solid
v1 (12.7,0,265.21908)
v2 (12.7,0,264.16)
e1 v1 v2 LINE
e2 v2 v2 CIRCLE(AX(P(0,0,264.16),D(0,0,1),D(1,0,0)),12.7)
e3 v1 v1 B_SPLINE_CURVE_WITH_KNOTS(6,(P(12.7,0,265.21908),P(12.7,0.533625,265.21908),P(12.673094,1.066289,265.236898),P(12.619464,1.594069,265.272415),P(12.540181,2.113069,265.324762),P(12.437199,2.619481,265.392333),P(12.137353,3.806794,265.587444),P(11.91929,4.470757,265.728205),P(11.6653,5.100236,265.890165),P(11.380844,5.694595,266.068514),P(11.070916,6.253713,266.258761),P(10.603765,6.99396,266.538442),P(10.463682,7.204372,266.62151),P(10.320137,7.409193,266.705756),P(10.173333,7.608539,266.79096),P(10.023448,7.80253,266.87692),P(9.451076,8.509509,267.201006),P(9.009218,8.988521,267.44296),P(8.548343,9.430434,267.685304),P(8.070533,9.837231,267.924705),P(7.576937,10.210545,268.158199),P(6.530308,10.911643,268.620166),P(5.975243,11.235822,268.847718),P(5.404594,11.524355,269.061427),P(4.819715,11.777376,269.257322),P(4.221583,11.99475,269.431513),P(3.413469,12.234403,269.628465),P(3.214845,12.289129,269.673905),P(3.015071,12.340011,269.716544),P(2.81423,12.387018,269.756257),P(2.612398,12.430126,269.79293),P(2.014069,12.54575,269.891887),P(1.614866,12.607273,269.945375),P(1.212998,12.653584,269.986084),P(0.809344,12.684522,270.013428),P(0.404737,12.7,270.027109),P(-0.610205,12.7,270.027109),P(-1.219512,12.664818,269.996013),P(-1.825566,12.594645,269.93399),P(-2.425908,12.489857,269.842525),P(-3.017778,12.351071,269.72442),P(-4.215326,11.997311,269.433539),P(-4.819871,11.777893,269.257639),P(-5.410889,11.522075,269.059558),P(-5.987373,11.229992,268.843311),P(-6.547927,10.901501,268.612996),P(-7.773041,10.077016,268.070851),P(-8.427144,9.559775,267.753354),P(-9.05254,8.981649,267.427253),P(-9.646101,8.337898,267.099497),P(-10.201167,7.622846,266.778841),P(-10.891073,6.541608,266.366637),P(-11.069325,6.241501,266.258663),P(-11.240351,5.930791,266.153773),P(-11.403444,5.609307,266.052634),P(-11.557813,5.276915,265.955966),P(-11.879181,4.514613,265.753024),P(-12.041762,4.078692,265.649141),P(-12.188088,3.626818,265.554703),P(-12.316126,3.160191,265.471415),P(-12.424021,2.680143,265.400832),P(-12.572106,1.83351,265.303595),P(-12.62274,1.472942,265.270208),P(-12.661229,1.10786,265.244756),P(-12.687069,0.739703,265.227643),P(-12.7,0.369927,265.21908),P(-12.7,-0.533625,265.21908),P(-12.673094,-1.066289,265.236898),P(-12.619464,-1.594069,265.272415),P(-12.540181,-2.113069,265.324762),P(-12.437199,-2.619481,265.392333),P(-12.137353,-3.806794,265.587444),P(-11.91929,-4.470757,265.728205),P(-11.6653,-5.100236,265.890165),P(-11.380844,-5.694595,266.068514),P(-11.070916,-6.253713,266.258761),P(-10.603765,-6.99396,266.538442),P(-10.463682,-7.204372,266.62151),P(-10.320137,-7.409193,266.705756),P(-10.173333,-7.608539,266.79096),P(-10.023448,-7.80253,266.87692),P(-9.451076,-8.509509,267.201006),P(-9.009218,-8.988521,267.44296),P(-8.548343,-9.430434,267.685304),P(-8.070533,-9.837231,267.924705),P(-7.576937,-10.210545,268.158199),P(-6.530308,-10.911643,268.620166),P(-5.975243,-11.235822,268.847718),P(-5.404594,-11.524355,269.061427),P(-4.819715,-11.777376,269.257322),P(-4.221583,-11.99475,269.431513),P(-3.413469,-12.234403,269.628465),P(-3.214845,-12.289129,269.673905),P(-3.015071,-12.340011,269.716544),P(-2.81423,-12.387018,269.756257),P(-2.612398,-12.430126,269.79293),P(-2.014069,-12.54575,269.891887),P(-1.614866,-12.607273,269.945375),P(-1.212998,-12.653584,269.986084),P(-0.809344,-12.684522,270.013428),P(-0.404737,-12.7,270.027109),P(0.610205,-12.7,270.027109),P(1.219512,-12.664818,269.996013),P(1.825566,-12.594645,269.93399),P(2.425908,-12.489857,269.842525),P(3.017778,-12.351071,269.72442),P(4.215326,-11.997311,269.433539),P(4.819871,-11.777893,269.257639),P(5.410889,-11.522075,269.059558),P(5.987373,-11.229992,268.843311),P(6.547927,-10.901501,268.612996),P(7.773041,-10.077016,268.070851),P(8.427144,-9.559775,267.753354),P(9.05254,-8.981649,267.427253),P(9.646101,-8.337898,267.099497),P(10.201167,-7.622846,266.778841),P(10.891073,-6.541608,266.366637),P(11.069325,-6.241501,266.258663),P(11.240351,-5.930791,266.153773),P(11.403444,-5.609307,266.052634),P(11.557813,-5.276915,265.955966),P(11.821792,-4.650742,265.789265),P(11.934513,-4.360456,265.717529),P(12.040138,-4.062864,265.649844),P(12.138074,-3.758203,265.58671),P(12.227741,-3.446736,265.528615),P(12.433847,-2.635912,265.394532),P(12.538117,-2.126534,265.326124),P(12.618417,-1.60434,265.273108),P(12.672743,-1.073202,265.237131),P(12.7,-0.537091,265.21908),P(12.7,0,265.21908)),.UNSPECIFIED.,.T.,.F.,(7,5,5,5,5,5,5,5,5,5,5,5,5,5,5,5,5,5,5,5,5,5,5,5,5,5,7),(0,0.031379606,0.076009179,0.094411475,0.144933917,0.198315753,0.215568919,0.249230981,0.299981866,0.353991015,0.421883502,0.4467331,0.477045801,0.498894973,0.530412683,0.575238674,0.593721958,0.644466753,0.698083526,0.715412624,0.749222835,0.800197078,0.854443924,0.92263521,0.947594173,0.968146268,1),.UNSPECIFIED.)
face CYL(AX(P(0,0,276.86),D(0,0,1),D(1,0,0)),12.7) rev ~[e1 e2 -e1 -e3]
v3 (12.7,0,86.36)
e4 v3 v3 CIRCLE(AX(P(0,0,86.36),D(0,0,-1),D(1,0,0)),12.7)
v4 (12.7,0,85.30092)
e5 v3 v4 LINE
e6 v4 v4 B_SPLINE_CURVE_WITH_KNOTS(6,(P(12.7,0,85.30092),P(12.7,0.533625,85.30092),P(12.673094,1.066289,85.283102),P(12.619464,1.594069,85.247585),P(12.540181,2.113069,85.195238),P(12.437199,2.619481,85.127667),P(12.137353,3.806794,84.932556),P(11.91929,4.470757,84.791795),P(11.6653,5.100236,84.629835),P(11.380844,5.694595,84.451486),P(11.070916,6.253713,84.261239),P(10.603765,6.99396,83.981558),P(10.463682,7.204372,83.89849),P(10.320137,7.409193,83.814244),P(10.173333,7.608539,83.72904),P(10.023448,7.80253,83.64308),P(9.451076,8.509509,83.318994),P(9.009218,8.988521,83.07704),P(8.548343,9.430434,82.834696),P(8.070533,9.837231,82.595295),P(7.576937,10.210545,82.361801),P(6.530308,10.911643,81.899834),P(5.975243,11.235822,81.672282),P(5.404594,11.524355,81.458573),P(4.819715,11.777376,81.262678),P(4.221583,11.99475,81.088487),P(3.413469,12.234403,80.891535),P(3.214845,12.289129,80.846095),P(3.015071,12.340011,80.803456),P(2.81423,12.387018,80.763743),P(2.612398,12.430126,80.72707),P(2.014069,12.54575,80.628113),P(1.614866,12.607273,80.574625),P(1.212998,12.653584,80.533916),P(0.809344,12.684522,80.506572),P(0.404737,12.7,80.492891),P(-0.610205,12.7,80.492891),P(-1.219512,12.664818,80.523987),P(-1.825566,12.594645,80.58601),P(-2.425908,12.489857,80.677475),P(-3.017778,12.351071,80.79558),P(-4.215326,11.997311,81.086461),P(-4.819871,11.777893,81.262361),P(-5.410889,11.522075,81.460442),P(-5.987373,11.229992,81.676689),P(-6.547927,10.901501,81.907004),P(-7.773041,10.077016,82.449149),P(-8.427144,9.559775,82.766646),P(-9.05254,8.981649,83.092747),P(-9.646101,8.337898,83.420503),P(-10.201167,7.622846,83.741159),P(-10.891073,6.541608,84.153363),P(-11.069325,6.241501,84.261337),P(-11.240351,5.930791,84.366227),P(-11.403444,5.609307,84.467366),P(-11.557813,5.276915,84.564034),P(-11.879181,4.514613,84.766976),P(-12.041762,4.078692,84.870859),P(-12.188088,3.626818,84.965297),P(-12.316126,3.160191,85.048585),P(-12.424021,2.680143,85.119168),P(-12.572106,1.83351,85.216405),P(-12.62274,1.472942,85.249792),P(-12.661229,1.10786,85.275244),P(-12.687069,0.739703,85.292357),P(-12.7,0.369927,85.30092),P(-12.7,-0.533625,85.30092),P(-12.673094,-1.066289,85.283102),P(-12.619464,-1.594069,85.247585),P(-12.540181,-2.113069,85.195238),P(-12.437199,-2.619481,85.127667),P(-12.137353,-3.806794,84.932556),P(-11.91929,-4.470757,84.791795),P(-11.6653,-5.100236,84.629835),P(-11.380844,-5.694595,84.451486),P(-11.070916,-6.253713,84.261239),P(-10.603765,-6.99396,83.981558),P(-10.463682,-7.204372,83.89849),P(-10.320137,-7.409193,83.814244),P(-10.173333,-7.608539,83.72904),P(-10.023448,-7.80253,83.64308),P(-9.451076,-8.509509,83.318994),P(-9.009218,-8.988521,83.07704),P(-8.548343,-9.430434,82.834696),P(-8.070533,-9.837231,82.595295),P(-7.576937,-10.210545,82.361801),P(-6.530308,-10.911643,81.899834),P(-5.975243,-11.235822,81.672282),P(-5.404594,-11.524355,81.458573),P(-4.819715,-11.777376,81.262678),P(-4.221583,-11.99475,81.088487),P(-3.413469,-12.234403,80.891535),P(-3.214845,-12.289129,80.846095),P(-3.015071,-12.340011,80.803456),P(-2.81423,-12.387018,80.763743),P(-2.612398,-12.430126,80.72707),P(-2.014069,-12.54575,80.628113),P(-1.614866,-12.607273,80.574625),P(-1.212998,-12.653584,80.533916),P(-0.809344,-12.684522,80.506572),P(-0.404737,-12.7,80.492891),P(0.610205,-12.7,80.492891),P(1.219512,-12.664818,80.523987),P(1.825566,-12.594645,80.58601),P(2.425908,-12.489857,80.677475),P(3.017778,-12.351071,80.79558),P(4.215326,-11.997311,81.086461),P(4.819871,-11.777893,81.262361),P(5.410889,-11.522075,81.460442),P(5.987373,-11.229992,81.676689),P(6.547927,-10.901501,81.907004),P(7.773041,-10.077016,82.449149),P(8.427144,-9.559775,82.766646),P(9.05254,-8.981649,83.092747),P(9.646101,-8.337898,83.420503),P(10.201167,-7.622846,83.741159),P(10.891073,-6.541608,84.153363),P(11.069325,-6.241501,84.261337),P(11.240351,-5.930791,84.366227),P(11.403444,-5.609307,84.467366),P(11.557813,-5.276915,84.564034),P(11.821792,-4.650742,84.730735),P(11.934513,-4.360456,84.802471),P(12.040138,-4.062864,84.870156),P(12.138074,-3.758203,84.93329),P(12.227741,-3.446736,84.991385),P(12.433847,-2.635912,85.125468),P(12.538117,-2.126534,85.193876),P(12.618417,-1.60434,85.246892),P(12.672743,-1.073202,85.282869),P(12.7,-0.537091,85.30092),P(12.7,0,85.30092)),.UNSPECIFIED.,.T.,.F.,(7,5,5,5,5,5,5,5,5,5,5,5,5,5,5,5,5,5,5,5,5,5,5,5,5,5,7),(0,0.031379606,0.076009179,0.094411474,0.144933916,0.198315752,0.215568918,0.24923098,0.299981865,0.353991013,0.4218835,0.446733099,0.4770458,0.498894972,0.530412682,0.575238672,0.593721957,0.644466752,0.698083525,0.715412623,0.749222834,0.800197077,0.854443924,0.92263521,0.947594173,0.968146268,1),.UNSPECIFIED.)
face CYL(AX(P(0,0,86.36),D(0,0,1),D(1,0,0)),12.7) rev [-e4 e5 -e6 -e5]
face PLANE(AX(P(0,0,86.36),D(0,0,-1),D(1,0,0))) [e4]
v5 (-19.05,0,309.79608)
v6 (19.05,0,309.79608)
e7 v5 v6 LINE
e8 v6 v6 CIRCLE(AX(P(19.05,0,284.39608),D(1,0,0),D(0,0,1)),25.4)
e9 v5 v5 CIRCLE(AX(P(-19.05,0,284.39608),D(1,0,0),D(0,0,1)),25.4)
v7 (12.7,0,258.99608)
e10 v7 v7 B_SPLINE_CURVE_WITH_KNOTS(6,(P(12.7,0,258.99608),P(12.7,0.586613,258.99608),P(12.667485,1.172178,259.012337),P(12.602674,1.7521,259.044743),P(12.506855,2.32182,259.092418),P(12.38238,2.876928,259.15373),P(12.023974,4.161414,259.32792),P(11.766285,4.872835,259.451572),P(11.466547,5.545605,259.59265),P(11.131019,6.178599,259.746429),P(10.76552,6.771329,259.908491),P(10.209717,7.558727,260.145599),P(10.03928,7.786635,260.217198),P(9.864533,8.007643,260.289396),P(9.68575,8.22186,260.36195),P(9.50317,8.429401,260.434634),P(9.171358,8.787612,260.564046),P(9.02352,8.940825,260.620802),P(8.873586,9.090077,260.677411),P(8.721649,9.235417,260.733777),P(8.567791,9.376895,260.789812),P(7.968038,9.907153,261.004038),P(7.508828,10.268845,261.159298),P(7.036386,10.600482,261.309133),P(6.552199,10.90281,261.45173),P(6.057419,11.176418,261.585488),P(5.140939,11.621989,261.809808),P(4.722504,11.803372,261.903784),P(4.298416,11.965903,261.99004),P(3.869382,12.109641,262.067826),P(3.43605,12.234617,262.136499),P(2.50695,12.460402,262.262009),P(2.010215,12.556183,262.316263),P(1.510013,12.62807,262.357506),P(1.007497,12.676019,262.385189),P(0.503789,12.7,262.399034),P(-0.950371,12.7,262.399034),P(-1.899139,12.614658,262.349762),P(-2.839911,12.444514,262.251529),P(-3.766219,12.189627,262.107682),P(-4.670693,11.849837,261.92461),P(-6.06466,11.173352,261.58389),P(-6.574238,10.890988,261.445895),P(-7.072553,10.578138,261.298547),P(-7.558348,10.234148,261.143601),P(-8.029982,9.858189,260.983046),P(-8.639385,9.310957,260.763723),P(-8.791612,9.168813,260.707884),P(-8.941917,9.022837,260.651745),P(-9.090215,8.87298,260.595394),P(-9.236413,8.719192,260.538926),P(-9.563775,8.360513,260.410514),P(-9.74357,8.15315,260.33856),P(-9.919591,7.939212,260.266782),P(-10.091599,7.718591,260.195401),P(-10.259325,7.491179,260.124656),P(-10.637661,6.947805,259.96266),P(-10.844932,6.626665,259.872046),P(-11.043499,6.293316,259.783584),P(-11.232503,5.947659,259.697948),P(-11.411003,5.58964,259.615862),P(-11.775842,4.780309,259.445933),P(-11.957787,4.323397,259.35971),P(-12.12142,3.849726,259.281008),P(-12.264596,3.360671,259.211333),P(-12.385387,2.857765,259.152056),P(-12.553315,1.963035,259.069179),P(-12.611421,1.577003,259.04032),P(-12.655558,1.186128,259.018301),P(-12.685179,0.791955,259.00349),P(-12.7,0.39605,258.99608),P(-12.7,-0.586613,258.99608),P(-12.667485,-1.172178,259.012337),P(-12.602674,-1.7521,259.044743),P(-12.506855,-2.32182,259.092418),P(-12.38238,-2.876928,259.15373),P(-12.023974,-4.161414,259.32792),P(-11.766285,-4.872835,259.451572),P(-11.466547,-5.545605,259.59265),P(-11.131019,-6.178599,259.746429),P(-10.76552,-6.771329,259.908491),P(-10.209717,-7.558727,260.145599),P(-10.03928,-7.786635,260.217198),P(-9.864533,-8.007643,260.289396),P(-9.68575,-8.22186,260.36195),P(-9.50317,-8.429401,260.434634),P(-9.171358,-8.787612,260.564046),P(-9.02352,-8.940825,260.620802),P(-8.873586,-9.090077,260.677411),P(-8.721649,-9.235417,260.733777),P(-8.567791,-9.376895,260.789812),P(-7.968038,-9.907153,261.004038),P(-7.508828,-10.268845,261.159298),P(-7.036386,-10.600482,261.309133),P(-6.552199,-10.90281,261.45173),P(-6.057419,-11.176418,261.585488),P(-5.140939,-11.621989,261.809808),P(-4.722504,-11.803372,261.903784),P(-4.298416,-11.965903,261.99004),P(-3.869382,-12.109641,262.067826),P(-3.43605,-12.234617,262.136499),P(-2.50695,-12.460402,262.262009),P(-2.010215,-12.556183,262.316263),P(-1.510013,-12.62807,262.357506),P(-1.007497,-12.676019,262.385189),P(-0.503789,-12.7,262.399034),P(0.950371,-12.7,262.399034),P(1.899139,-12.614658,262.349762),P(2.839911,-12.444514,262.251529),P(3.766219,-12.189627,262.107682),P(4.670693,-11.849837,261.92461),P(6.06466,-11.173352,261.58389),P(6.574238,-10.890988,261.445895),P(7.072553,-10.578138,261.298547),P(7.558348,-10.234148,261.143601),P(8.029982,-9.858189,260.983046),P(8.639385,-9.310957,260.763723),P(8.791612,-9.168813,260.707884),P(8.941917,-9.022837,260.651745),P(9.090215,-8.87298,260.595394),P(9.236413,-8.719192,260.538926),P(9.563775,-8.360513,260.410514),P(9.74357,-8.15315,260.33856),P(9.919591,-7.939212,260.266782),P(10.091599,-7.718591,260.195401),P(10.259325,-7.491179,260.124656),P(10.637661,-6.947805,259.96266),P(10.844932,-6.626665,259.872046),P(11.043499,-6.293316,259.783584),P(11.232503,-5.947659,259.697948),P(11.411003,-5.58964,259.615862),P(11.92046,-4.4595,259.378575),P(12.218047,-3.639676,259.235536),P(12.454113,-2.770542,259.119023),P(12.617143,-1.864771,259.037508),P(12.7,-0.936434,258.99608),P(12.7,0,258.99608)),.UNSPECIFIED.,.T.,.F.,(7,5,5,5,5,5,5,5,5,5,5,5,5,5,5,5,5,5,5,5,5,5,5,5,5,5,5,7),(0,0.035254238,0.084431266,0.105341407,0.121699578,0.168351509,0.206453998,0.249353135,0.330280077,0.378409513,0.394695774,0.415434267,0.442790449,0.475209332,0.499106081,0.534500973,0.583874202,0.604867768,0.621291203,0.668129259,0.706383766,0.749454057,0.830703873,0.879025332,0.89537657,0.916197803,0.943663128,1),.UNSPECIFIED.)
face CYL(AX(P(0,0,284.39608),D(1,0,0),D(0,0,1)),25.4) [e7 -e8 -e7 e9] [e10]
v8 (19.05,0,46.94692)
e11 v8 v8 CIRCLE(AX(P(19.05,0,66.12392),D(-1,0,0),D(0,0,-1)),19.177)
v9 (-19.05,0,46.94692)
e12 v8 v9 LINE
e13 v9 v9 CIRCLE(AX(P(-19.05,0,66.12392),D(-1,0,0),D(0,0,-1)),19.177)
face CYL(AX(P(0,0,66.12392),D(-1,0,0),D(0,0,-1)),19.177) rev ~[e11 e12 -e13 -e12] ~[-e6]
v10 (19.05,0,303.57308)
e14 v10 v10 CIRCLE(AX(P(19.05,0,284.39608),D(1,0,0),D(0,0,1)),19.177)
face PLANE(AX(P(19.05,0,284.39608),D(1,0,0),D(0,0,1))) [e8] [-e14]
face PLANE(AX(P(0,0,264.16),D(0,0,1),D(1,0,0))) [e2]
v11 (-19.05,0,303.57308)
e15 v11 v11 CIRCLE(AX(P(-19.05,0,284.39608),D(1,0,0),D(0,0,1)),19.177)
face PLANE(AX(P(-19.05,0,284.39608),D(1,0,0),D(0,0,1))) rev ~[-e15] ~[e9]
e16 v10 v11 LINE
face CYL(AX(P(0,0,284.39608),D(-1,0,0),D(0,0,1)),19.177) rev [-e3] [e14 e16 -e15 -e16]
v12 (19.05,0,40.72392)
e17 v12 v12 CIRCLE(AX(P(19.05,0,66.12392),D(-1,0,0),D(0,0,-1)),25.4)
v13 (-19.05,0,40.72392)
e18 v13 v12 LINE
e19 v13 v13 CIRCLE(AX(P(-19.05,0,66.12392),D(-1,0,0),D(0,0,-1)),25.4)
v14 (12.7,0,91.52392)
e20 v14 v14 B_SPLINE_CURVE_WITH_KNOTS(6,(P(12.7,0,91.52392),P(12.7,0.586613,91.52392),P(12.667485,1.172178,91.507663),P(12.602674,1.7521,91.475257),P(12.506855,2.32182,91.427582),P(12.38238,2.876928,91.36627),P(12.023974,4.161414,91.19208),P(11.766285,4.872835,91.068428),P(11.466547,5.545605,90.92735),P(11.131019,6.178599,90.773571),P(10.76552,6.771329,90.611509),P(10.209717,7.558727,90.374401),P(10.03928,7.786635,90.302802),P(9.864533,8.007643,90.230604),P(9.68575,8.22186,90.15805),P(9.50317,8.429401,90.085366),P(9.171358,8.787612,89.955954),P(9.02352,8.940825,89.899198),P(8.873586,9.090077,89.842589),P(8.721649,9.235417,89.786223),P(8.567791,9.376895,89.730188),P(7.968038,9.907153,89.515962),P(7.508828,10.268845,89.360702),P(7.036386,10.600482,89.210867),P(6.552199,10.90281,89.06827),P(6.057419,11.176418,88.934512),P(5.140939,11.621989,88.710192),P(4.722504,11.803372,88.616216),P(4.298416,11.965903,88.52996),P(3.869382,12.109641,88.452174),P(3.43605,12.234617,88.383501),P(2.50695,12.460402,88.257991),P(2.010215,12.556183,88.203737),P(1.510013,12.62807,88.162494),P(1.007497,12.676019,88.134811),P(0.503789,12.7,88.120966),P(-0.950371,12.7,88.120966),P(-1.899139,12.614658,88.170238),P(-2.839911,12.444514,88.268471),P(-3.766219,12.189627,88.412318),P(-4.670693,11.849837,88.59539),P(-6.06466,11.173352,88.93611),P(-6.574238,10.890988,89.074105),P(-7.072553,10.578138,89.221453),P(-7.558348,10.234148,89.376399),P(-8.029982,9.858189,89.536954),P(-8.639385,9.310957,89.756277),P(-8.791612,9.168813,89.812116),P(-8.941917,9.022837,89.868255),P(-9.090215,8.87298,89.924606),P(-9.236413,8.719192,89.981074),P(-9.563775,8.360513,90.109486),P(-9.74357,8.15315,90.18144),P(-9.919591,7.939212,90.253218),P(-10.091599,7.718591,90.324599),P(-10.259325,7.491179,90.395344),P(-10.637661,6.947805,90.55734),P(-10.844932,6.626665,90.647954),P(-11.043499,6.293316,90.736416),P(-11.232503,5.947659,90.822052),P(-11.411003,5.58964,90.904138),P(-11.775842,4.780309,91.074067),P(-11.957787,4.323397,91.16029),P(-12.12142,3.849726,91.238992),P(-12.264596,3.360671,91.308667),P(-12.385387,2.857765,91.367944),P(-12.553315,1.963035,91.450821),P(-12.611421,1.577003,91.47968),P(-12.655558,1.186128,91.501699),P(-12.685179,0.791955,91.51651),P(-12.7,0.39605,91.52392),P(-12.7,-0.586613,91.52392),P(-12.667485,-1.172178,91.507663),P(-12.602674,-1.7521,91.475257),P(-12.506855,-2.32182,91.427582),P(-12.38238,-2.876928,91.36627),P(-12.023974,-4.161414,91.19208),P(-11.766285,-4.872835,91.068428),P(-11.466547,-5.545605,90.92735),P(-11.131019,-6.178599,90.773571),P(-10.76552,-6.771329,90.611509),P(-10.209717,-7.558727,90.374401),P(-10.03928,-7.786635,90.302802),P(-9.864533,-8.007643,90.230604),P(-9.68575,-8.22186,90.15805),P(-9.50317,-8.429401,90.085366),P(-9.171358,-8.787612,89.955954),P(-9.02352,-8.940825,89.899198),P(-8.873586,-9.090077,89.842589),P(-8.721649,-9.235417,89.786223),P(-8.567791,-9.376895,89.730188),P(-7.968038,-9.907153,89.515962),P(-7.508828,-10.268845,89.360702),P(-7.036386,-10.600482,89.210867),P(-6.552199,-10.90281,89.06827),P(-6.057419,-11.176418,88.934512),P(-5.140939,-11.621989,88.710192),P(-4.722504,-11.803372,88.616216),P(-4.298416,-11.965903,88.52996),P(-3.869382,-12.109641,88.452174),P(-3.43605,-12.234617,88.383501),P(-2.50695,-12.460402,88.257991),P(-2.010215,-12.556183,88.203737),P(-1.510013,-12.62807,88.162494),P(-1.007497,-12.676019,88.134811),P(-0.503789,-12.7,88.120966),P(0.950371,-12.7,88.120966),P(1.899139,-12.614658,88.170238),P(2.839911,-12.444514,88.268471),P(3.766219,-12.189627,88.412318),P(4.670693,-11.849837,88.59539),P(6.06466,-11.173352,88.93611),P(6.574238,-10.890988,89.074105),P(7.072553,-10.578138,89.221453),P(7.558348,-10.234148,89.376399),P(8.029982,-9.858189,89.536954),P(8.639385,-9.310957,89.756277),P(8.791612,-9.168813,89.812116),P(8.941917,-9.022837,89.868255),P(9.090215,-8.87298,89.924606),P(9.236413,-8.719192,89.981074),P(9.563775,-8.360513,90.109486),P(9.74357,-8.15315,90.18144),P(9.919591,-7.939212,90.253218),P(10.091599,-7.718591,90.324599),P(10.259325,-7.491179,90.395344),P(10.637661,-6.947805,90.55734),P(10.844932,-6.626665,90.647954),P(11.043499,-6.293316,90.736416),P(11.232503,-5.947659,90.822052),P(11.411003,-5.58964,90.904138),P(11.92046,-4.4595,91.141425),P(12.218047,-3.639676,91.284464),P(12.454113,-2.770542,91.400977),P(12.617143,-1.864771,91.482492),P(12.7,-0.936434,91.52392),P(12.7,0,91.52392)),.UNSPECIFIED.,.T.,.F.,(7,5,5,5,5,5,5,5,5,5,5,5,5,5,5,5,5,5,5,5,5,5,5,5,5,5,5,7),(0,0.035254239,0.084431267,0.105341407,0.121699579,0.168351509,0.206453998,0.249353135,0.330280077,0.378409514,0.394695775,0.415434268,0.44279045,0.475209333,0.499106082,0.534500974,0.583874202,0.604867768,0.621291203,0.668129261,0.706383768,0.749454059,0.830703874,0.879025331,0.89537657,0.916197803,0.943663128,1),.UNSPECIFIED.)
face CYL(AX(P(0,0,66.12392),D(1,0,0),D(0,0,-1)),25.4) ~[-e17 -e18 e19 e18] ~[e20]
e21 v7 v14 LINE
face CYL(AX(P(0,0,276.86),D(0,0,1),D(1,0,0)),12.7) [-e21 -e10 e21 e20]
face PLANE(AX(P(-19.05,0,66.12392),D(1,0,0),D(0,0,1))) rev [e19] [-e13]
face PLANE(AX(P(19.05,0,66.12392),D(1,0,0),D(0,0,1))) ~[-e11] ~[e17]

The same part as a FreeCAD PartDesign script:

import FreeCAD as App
import Part
import Sketcher

V = App.Vector
Q = App.Units.Quantity

doc = App.newDocument("Part")
body = doc.addObject("PartDesign::Body", "Body")

# Sketch on YZ plane
sketch1 = body.newObject("Sketcher::SketchObject", "Sketch")
sketch1.AttachmentSupport = (doc.getObject("YZ_Plane"), [""])
sketch1.MapMode = "FlatFace"
sketch1.addGeometry([
    Part.Circle(V(0, 284, 0), V(0, 0, 1), 25),
    Part.Circle(V(0, 284, 0), V(0, 0, 1), 19),
], False)
sketch1.addConstraint([
    Sketcher.Constraint("Coincident", 1, 3, 0, 3),
    Sketcher.Constraint("PointOnObject", 0, 3, -2),
    Sketcher.Constraint("Diameter", 0, Q("2 in")),
    Sketcher.Constraint("Diameter", 1, Q("1.51 in")),
    Sketcher.Constraint("DistanceY", -1, 1, 0, 3, Q("284.39608 mm")),
])
pad1 = body.newObject("PartDesign::Pad", "Pad")
pad1.Profile = sketch1
pad1.Length = Q("1.5 in")
pad1.Midplane = True

# Sketch on XY plane
sketch2 = body.newObject("Sketcher::SketchObject", "Sketch001")
sketch2.AttachmentSupport = (doc.getObject("XY_Plane"), [""])
sketch2.MapMode = "FlatFace"
sketch2.AttachmentOffset = App.Placement(V(0, 0, 10.9 * 25.4), App.Rotation())
sketch2.addGeometry(Part.Circle(V(0, 0, 0), V(0, 0, 1), 13), False)
sketch2.addConstraint([
    Sketcher.Constraint("Coincident", 0, 3, -1, 1),
    Sketcher.Constraint("Diameter", 0, Q("1 in")),
])
pad2 = body.newObject("PartDesign::Pad", "Pad001")
pad2.Profile = sketch2
pad2.Length = Q("8 in")
pad2.Reversed = True
doc.recompute()

datumplane = body.newObject("PartDesign::Plane", "DatumPlane")
datumplane.AttachmentSupport = (doc.getObject("XY_Plane"), [""])
datumplane.MapMode = "FlatFace"
datumplane.AttachmentOffset = App.Placement(V(0, 0, 6.9 * 25.4), App.Rotation())
mirrored = body.newObject("PartDesign::Mirrored", "Mirrored")
mirrored.Originals = [pad1]
mirrored.MirrorPlane = (datumplane, [""])
body.Tip = mirrored

# Sketch on XY plane
sketch3 = body.newObject("Sketcher::SketchObject", "Sketch002")
sketch3.AttachmentSupport = (doc.getObject("XY_Plane"), [""])
sketch3.MapMode = "FlatFace"
sketch3.AttachmentOffset = App.Placement(V(0, 0, 3.4 * 25.4), App.Rotation())
sketch3.addGeometry(Part.Circle(V(0, 0, 0), V(0, 0, 1), 13), False)
sketch3.addConstraint([
    Sketcher.Constraint("Coincident", 0, 3, -1, 1),
    Sketcher.Constraint("Diameter", 0, Q("1 in")),
])
pocket1 = body.newObject("PartDesign::Pocket", "Pocket")
pocket1.Profile = sketch3
pocket1.Length = Q("0.5 in")

# Sketch on XY plane
sketch4 = body.newObject("Sketcher::SketchObject", "Sketch003")
sketch4.AttachmentSupport = (doc.getObject("XY_Plane"), [""])
sketch4.MapMode = "FlatFace"
sketch4.AttachmentOffset = App.Placement(V(0, 0, 10.9 * 25.4), App.Rotation())
sketch4.addGeometry(Part.Circle(V(0, 0, 0), V(0, 0, 1), 13), False)
sketch4.addConstraint([
    Sketcher.Constraint("Coincident", 0, 3, -1, 1),
    Sketcher.Constraint("Diameter", 0, Q("1 in")),
])
pocket2 = body.newObject("PartDesign::Pocket", "Pocket001")
pocket2.Profile = sketch4
pocket2.Length = Q("0.5 in")

doc.recompute()
